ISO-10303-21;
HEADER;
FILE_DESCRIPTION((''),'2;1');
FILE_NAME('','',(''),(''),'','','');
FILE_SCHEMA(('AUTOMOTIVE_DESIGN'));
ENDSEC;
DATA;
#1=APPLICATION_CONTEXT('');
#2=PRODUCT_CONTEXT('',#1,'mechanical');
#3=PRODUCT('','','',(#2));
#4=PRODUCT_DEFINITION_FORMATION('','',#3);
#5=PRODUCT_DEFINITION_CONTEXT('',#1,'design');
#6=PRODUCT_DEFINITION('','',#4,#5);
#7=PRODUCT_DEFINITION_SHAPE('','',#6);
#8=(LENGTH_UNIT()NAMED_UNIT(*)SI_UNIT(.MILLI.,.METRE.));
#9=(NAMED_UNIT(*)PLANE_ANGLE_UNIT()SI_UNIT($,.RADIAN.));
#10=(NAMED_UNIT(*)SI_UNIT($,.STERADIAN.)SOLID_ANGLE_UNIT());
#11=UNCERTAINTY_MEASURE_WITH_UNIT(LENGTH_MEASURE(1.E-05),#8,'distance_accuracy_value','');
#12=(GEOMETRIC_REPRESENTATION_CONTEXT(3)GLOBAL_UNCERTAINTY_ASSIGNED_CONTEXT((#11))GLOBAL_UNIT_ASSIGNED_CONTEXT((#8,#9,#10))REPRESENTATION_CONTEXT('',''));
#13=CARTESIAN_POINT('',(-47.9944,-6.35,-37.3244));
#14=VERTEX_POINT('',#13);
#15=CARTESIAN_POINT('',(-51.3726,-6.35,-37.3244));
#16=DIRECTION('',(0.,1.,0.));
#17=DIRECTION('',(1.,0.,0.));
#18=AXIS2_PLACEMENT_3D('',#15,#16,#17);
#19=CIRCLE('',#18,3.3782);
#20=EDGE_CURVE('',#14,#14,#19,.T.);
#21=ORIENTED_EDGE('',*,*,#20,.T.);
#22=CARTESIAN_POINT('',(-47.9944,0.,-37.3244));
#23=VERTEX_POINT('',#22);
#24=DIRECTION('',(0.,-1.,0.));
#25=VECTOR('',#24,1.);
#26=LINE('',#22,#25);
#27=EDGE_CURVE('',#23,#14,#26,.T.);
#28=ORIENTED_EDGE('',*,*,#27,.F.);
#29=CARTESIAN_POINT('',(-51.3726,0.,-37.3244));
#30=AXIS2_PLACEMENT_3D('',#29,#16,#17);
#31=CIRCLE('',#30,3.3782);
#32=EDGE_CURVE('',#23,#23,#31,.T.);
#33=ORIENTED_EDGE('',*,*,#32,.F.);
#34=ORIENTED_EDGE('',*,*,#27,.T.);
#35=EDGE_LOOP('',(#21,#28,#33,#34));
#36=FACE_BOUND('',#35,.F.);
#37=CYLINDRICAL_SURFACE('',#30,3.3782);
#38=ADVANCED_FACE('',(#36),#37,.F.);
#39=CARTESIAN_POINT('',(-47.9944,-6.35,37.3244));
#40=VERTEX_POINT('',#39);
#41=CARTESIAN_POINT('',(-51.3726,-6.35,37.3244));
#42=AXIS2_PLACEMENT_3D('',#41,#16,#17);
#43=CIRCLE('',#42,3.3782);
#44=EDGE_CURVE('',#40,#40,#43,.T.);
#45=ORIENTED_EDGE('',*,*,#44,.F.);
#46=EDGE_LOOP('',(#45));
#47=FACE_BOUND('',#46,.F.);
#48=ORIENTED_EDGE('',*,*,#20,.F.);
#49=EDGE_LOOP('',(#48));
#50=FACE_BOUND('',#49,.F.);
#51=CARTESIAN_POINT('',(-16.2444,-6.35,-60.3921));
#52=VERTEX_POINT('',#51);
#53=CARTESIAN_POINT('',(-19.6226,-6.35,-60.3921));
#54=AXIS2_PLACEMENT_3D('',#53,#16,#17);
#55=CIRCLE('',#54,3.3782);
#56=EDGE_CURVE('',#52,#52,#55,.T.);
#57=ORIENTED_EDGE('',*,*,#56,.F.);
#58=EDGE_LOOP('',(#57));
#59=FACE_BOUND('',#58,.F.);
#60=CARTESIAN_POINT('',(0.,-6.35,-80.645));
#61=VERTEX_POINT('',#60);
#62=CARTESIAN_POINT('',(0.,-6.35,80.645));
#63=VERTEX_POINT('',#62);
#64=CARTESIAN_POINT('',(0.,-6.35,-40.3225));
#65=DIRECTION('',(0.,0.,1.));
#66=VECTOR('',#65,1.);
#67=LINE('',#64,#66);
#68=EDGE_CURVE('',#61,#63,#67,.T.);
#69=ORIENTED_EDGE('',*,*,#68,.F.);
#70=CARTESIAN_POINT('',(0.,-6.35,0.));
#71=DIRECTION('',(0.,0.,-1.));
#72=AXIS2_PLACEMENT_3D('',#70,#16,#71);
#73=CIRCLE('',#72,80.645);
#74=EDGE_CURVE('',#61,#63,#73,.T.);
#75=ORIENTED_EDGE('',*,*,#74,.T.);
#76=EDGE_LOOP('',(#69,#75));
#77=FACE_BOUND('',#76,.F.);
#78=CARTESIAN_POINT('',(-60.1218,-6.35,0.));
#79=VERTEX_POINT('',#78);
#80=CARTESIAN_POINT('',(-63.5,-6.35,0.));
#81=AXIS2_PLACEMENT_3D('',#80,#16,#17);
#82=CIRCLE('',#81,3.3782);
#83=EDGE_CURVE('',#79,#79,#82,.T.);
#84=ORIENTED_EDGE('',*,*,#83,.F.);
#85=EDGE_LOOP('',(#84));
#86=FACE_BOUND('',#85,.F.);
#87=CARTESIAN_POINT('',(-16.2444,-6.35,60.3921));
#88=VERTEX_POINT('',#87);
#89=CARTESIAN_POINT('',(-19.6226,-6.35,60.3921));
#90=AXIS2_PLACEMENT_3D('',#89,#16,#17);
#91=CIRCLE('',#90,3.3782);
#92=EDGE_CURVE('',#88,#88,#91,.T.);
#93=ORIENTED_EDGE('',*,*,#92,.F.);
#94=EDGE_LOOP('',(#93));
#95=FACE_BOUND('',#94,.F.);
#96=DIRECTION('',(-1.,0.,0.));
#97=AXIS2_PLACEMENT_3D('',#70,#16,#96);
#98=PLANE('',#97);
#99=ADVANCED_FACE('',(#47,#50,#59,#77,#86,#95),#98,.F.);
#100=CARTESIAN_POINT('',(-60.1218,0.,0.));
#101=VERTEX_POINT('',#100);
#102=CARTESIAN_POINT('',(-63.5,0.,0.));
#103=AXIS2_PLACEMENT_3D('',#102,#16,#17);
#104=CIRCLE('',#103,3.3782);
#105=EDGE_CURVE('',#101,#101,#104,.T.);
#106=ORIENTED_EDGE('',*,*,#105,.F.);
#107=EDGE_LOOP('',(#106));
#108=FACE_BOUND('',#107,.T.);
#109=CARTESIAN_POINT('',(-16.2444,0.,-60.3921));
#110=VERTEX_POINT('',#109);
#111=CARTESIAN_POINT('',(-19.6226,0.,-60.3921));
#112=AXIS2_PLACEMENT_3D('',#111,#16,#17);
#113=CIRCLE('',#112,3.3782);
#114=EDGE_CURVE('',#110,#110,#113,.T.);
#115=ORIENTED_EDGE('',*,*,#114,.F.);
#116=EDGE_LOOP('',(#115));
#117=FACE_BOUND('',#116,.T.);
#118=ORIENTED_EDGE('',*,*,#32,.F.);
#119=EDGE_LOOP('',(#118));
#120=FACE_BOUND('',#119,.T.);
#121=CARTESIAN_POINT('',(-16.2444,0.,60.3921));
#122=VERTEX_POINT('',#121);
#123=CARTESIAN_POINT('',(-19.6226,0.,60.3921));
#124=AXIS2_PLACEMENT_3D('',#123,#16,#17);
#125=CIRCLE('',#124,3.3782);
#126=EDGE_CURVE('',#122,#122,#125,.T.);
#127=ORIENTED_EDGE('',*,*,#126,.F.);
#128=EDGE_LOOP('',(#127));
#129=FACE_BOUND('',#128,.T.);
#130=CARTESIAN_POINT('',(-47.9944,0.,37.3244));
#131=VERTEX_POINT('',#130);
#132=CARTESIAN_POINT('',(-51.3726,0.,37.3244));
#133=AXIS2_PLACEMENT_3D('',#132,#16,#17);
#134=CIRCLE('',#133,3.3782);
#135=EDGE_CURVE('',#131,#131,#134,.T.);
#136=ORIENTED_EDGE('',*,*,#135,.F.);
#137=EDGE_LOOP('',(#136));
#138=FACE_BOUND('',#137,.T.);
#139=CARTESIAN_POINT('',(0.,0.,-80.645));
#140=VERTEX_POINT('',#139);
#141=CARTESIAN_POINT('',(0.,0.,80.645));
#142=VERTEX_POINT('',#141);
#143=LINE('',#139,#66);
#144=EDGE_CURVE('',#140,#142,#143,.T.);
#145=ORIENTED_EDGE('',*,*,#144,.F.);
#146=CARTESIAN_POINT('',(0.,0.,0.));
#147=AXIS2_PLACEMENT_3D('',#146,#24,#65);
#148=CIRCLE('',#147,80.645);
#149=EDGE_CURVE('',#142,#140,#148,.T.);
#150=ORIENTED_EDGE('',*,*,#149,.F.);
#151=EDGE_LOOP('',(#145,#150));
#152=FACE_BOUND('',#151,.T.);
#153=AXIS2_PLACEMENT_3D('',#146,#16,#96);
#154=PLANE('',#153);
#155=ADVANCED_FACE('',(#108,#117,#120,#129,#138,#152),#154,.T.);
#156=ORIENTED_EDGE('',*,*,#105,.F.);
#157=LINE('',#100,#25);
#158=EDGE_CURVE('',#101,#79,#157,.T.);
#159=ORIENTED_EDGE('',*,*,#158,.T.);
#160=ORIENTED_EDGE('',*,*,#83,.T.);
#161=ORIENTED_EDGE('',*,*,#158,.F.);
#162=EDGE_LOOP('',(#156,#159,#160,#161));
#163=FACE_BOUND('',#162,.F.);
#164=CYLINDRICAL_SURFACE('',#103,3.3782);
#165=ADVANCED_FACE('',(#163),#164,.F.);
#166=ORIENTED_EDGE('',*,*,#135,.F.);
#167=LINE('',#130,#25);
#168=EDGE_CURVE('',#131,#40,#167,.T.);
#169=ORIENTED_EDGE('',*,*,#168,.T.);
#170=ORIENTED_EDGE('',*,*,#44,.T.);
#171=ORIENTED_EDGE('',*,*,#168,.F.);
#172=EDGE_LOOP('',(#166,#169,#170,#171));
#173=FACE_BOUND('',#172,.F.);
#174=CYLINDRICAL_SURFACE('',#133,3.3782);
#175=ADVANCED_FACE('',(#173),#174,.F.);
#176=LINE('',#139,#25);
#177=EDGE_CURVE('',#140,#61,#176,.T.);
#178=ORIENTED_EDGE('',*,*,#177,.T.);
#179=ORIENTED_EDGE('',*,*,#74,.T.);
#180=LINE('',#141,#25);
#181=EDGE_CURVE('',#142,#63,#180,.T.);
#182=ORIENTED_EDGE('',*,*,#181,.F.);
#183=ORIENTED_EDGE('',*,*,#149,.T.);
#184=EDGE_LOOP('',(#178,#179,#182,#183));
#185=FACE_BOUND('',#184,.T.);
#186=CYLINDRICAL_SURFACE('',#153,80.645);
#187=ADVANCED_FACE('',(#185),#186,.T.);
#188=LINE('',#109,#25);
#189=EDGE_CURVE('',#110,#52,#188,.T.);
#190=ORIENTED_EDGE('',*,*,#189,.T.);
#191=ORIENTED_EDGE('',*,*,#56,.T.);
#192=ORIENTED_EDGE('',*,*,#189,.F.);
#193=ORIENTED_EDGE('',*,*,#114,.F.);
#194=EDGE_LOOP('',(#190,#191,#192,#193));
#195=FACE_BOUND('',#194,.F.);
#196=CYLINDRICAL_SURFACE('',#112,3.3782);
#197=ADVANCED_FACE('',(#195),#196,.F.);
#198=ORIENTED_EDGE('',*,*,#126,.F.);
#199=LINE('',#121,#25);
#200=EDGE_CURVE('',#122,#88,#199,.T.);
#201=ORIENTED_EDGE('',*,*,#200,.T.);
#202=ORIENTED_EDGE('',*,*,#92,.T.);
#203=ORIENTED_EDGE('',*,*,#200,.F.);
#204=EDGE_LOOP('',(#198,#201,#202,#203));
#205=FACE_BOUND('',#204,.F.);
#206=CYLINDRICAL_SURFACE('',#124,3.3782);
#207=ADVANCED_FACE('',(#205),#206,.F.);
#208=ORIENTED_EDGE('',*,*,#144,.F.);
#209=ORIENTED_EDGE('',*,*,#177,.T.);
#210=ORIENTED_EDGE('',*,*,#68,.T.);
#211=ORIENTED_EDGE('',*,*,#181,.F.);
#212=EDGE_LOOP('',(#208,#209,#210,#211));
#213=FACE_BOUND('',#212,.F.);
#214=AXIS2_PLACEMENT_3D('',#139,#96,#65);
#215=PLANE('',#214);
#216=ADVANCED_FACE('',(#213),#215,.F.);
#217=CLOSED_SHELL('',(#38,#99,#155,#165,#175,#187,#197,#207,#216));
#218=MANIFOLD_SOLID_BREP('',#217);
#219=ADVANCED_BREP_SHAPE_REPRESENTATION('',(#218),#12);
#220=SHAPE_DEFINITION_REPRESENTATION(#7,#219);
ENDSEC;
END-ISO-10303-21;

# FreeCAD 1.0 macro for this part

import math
import FreeCAD as App
import Part
import Sketcher

V = App.Vector
Q = App.Units.Quantity

doc = App.newDocument("Part")
body = doc.addObject("PartDesign::Body", "Body")

sketch1 = doc.addObject("Sketcher::SketchObject", "Sketch")
body.addObject(sketch1)
sketch1.AttachmentSupport = (doc.XZ_Plane, [""])
sketch1.MapMode = "FlatFace"
sketch1.addGeometry(Part.Circle(V(0, 0, 0), V(0, 0, 1), 80.645), False)
sketch1.addConstraint([
    Sketcher.Constraint("Coincident", 0, 3, -1, 1),
    Sketcher.Constraint("Diameter", 0, Q("6.35 in")),
])
pad1 = doc.addObject("PartDesign::Pad", "Pad")
body.addObject(pad1)
pad1.Profile = sketch1
pad1.Length = Q("0.25 in")

sketch2 = doc.addObject("Sketcher::SketchObject", "Sketch001")
body.addObject(sketch2)
sketch2.AttachmentSupport = (doc.XZ_Plane, [""])
sketch2.MapMode = "FlatFace"
sketch2.addGeometry([
    Part.LineSegment(V(0, -80.645, 0), V(0, 80.645, 0)),
    Part.ArcOfCircle(Part.Circle(V(0, 0, 0), V(0, 0, 1), 80.645), math.radians(-90), math.radians(90)),
], False)
sketch2.addConstraint([
    Sketcher.Constraint("Coincident", 0, 1, 1, 1),
    Sketcher.Constraint("Coincident", 1, 2, 0, 2),
    Sketcher.Constraint("Vertical", 0),
    Sketcher.Constraint("Coincident", 1, 3, -1, 1),
    Sketcher.Constraint("PointOnObject", 0, 1, -2),
    Sketcher.Constraint("Radius", 1, Q("3.175 in")),
])
pocket1 = doc.addObject("PartDesign::Pocket", "Pocket")
body.addObject(pocket1)
pocket1.Profile = sketch2
pocket1.Type = "ThroughAll"
pocket1.Reversed = True

sketch3 = doc.addObject("Sketcher::SketchObject", "Sketch002")
body.addObject(sketch3)
sketch3.AttachmentSupport = (doc.XZ_Plane, [""])
sketch3.MapMode = "FlatFace"
sketch3.addGeometry([
    Part.Circle(V(-63.5, 0, 0), V(0, 0, 1), 3.3782),
    Part.Circle(V(-51.3726, 37.3244, 0), V(0, 0, 1), 3.3782),
    Part.Circle(V(-19.6226, 60.3921, 0), V(0, 0, 1), 3.3782),
    Part.Circle(V(-19.6226, -60.3921, 0), V(0, 0, 1), 3.3782),
    Part.Circle(V(-51.3726, -37.3244, 0), V(0, 0, 1), 3.3782),
], False)
sketch3.addConstraint([
    Sketcher.Constraint("Equal", 0, 1),
    Sketcher.Constraint("Equal", 1, 2),
    Sketcher.Constraint("Equal", 2, 3),
    Sketcher.Constraint("Equal", 3, 4),
    Sketcher.Constraint("Symmetric", 2, 3, 3, 3, -1),
    Sketcher.Constraint("Symmetric", 1, 3, 4, 3, -1),
    Sketcher.Constraint("PointOnObject", 0, 3, -1),
    Sketcher.Constraint("Diameter", 0, Q("0.266 in")),
    Sketcher.Constraint("DistanceX", 0, 3, -1, 1, Q("2.5 in")),
    Sketcher.Constraint("DistanceX", 1, 3, 2, 3, Q("1.25 in")),
    Sketcher.Constraint("DistanceY", 3, 3, 1, 3, Q("3.8471 in")),
    Sketcher.Constraint("DistanceX", 1, 3, -1, 1, Q("51.3726 mm")),
    Sketcher.Constraint("DistanceY", -1, 1, 1, 3, Q("37.3244 mm")),
])
pocket2 = doc.addObject("PartDesign::Pocket", "Pocket001")
body.addObject(pocket2)
pocket2.Profile = sketch3
pocket2.Type = "ThroughAll"
pocket2.Reversed = True

doc.recompute()
